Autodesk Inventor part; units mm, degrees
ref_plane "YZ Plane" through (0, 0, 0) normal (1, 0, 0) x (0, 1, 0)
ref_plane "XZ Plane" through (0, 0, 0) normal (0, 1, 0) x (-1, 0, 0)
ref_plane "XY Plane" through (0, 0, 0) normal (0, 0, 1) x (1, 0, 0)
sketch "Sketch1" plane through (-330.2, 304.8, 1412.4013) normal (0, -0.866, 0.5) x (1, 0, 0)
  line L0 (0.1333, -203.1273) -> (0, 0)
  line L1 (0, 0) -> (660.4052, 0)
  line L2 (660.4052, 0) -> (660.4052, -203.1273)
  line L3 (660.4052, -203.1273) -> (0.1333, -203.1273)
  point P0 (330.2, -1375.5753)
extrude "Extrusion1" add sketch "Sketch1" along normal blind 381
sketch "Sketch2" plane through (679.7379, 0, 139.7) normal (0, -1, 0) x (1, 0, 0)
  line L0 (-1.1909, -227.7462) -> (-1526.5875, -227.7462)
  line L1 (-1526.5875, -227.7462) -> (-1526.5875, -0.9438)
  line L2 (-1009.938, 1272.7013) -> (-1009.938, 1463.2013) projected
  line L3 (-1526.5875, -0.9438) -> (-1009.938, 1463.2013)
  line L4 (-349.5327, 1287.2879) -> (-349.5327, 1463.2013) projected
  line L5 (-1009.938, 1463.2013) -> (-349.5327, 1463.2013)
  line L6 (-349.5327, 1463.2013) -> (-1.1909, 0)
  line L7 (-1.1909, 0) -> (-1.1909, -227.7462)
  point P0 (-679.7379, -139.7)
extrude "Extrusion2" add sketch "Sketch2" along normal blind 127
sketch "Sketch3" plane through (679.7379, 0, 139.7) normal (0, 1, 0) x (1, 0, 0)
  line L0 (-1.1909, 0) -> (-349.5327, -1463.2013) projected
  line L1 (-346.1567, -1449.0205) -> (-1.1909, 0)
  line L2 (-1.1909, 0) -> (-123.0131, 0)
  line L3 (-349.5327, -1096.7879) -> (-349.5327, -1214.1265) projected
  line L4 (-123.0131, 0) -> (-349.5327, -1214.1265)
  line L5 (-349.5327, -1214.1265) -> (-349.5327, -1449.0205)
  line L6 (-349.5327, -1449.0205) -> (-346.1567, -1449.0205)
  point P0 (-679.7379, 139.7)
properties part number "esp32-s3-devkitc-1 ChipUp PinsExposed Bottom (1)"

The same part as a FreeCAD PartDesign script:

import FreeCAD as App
import Part
import Sketcher
from FreeCAD import Vector
Q = App.Units.Quantity


def add_polygon(sketch, points):
    """Adds a closed chain of lines whose ends are joined by coincident constraints."""
    first, n = sketch.GeometryCount, len(points)
    for a, b in zip(points, points[1:] + points[:1]):
        sketch.addGeometry(Part.LineSegment(App.Vector(*a, 0), App.Vector(*b, 0)), False)
    for i in range(n):
        sketch.addConstraint(Sketcher.Constraint("Coincident", first + i, 2, first + (i + 1) % n, 1))

doc = App.newDocument("Part")
body = doc.addObject("PartDesign::Body", "Body")

# Sketch on an angled plane
sketch1 = doc.addObject("Sketcher::SketchObject", "Sketch")
body.addObject(sketch1)
sketch1.Placement = App.Placement(Vector(-330.2, 304.8, 1412.4013), App.Rotation(Vector(1, 0, 0), Vector(0, 0.5, 0.866025404), Vector(0, -0.866025404, 0.5), "ZXY"))
add_polygon(sketch1, [(0, 0), (0, -203), (660, -203), (660, 0)])  # lines 0-3
sketch1.addConstraint([
    Sketcher.Constraint("Horizontal", 1),
    Sketcher.Constraint("Vertical", 2),
    Sketcher.Constraint("Horizontal", 3),
    Sketcher.Constraint("Coincident", 3, 2, -1, 1),
    Sketcher.Constraint("DistanceX", 3, 2, 3, 1, Q("26.0002 in")),
    Sketcher.Constraint("DistanceX", 1, 1, 1, 2, Q("660.272 mm")),
    Sketcher.Constraint("DistanceY", 2, 1, 2, 2, Q("203.1273 mm")),
])
pad1 = doc.addObject("PartDesign::Pad", "Pad")
body.addObject(pad1)
pad1.Profile = sketch1
pad1.Length = Q("15 in")

# Sketch on XZ plane
sketch2 = doc.addObject("Sketcher::SketchObject", "Sketch001")
body.addObject(sketch2)
sketch2.AttachmentSupport = (doc.XZ_Plane, [""])
sketch2.MapMode = "FlatFace"
add_polygon(sketch2, [(-847, -88), (679, -88), (679, 140), (330, 1603), (-330, 1603), (-847, 139)])  # lines 0-5
sketch2.addConstraint([
    Sketcher.Constraint("Horizontal", 0),
    Sketcher.Constraint("Vertical", 1),
    Sketcher.Constraint("Horizontal", 3),
    Sketcher.Constraint("Vertical", 5),
    Sketcher.Constraint("DistanceX", 3, 2, -1, 1, Q("13 in")),
    Sketcher.Constraint("DistanceY", -1, 1, 1, 2, Q("5.5 in")),
    Sketcher.Constraint("Angle", 2, Q("103.391 deg")),
    Sketcher.Constraint("Distance", 4, Q("61.127 in")),
    Sketcher.Constraint("DistanceX", 3, 2, 3, 1, Q("26.0002 in")),
    Sketcher.Constraint("DistanceX", 0, 1, 0, 2, Q("1525.3966 mm")),
    Sketcher.Constraint("DistanceY", 1, 1, 1, 2, Q("227.7462 mm")),
    Sketcher.Constraint("DistanceY", 5, 2, 5, 1, Q("226.8024 mm")),
])
pad2 = doc.addObject("PartDesign::Pad", "Pad001")
body.addObject(pad2)
pad2.Profile = sketch2
pad2.Length = Q("5 in")

doc.recompute()
